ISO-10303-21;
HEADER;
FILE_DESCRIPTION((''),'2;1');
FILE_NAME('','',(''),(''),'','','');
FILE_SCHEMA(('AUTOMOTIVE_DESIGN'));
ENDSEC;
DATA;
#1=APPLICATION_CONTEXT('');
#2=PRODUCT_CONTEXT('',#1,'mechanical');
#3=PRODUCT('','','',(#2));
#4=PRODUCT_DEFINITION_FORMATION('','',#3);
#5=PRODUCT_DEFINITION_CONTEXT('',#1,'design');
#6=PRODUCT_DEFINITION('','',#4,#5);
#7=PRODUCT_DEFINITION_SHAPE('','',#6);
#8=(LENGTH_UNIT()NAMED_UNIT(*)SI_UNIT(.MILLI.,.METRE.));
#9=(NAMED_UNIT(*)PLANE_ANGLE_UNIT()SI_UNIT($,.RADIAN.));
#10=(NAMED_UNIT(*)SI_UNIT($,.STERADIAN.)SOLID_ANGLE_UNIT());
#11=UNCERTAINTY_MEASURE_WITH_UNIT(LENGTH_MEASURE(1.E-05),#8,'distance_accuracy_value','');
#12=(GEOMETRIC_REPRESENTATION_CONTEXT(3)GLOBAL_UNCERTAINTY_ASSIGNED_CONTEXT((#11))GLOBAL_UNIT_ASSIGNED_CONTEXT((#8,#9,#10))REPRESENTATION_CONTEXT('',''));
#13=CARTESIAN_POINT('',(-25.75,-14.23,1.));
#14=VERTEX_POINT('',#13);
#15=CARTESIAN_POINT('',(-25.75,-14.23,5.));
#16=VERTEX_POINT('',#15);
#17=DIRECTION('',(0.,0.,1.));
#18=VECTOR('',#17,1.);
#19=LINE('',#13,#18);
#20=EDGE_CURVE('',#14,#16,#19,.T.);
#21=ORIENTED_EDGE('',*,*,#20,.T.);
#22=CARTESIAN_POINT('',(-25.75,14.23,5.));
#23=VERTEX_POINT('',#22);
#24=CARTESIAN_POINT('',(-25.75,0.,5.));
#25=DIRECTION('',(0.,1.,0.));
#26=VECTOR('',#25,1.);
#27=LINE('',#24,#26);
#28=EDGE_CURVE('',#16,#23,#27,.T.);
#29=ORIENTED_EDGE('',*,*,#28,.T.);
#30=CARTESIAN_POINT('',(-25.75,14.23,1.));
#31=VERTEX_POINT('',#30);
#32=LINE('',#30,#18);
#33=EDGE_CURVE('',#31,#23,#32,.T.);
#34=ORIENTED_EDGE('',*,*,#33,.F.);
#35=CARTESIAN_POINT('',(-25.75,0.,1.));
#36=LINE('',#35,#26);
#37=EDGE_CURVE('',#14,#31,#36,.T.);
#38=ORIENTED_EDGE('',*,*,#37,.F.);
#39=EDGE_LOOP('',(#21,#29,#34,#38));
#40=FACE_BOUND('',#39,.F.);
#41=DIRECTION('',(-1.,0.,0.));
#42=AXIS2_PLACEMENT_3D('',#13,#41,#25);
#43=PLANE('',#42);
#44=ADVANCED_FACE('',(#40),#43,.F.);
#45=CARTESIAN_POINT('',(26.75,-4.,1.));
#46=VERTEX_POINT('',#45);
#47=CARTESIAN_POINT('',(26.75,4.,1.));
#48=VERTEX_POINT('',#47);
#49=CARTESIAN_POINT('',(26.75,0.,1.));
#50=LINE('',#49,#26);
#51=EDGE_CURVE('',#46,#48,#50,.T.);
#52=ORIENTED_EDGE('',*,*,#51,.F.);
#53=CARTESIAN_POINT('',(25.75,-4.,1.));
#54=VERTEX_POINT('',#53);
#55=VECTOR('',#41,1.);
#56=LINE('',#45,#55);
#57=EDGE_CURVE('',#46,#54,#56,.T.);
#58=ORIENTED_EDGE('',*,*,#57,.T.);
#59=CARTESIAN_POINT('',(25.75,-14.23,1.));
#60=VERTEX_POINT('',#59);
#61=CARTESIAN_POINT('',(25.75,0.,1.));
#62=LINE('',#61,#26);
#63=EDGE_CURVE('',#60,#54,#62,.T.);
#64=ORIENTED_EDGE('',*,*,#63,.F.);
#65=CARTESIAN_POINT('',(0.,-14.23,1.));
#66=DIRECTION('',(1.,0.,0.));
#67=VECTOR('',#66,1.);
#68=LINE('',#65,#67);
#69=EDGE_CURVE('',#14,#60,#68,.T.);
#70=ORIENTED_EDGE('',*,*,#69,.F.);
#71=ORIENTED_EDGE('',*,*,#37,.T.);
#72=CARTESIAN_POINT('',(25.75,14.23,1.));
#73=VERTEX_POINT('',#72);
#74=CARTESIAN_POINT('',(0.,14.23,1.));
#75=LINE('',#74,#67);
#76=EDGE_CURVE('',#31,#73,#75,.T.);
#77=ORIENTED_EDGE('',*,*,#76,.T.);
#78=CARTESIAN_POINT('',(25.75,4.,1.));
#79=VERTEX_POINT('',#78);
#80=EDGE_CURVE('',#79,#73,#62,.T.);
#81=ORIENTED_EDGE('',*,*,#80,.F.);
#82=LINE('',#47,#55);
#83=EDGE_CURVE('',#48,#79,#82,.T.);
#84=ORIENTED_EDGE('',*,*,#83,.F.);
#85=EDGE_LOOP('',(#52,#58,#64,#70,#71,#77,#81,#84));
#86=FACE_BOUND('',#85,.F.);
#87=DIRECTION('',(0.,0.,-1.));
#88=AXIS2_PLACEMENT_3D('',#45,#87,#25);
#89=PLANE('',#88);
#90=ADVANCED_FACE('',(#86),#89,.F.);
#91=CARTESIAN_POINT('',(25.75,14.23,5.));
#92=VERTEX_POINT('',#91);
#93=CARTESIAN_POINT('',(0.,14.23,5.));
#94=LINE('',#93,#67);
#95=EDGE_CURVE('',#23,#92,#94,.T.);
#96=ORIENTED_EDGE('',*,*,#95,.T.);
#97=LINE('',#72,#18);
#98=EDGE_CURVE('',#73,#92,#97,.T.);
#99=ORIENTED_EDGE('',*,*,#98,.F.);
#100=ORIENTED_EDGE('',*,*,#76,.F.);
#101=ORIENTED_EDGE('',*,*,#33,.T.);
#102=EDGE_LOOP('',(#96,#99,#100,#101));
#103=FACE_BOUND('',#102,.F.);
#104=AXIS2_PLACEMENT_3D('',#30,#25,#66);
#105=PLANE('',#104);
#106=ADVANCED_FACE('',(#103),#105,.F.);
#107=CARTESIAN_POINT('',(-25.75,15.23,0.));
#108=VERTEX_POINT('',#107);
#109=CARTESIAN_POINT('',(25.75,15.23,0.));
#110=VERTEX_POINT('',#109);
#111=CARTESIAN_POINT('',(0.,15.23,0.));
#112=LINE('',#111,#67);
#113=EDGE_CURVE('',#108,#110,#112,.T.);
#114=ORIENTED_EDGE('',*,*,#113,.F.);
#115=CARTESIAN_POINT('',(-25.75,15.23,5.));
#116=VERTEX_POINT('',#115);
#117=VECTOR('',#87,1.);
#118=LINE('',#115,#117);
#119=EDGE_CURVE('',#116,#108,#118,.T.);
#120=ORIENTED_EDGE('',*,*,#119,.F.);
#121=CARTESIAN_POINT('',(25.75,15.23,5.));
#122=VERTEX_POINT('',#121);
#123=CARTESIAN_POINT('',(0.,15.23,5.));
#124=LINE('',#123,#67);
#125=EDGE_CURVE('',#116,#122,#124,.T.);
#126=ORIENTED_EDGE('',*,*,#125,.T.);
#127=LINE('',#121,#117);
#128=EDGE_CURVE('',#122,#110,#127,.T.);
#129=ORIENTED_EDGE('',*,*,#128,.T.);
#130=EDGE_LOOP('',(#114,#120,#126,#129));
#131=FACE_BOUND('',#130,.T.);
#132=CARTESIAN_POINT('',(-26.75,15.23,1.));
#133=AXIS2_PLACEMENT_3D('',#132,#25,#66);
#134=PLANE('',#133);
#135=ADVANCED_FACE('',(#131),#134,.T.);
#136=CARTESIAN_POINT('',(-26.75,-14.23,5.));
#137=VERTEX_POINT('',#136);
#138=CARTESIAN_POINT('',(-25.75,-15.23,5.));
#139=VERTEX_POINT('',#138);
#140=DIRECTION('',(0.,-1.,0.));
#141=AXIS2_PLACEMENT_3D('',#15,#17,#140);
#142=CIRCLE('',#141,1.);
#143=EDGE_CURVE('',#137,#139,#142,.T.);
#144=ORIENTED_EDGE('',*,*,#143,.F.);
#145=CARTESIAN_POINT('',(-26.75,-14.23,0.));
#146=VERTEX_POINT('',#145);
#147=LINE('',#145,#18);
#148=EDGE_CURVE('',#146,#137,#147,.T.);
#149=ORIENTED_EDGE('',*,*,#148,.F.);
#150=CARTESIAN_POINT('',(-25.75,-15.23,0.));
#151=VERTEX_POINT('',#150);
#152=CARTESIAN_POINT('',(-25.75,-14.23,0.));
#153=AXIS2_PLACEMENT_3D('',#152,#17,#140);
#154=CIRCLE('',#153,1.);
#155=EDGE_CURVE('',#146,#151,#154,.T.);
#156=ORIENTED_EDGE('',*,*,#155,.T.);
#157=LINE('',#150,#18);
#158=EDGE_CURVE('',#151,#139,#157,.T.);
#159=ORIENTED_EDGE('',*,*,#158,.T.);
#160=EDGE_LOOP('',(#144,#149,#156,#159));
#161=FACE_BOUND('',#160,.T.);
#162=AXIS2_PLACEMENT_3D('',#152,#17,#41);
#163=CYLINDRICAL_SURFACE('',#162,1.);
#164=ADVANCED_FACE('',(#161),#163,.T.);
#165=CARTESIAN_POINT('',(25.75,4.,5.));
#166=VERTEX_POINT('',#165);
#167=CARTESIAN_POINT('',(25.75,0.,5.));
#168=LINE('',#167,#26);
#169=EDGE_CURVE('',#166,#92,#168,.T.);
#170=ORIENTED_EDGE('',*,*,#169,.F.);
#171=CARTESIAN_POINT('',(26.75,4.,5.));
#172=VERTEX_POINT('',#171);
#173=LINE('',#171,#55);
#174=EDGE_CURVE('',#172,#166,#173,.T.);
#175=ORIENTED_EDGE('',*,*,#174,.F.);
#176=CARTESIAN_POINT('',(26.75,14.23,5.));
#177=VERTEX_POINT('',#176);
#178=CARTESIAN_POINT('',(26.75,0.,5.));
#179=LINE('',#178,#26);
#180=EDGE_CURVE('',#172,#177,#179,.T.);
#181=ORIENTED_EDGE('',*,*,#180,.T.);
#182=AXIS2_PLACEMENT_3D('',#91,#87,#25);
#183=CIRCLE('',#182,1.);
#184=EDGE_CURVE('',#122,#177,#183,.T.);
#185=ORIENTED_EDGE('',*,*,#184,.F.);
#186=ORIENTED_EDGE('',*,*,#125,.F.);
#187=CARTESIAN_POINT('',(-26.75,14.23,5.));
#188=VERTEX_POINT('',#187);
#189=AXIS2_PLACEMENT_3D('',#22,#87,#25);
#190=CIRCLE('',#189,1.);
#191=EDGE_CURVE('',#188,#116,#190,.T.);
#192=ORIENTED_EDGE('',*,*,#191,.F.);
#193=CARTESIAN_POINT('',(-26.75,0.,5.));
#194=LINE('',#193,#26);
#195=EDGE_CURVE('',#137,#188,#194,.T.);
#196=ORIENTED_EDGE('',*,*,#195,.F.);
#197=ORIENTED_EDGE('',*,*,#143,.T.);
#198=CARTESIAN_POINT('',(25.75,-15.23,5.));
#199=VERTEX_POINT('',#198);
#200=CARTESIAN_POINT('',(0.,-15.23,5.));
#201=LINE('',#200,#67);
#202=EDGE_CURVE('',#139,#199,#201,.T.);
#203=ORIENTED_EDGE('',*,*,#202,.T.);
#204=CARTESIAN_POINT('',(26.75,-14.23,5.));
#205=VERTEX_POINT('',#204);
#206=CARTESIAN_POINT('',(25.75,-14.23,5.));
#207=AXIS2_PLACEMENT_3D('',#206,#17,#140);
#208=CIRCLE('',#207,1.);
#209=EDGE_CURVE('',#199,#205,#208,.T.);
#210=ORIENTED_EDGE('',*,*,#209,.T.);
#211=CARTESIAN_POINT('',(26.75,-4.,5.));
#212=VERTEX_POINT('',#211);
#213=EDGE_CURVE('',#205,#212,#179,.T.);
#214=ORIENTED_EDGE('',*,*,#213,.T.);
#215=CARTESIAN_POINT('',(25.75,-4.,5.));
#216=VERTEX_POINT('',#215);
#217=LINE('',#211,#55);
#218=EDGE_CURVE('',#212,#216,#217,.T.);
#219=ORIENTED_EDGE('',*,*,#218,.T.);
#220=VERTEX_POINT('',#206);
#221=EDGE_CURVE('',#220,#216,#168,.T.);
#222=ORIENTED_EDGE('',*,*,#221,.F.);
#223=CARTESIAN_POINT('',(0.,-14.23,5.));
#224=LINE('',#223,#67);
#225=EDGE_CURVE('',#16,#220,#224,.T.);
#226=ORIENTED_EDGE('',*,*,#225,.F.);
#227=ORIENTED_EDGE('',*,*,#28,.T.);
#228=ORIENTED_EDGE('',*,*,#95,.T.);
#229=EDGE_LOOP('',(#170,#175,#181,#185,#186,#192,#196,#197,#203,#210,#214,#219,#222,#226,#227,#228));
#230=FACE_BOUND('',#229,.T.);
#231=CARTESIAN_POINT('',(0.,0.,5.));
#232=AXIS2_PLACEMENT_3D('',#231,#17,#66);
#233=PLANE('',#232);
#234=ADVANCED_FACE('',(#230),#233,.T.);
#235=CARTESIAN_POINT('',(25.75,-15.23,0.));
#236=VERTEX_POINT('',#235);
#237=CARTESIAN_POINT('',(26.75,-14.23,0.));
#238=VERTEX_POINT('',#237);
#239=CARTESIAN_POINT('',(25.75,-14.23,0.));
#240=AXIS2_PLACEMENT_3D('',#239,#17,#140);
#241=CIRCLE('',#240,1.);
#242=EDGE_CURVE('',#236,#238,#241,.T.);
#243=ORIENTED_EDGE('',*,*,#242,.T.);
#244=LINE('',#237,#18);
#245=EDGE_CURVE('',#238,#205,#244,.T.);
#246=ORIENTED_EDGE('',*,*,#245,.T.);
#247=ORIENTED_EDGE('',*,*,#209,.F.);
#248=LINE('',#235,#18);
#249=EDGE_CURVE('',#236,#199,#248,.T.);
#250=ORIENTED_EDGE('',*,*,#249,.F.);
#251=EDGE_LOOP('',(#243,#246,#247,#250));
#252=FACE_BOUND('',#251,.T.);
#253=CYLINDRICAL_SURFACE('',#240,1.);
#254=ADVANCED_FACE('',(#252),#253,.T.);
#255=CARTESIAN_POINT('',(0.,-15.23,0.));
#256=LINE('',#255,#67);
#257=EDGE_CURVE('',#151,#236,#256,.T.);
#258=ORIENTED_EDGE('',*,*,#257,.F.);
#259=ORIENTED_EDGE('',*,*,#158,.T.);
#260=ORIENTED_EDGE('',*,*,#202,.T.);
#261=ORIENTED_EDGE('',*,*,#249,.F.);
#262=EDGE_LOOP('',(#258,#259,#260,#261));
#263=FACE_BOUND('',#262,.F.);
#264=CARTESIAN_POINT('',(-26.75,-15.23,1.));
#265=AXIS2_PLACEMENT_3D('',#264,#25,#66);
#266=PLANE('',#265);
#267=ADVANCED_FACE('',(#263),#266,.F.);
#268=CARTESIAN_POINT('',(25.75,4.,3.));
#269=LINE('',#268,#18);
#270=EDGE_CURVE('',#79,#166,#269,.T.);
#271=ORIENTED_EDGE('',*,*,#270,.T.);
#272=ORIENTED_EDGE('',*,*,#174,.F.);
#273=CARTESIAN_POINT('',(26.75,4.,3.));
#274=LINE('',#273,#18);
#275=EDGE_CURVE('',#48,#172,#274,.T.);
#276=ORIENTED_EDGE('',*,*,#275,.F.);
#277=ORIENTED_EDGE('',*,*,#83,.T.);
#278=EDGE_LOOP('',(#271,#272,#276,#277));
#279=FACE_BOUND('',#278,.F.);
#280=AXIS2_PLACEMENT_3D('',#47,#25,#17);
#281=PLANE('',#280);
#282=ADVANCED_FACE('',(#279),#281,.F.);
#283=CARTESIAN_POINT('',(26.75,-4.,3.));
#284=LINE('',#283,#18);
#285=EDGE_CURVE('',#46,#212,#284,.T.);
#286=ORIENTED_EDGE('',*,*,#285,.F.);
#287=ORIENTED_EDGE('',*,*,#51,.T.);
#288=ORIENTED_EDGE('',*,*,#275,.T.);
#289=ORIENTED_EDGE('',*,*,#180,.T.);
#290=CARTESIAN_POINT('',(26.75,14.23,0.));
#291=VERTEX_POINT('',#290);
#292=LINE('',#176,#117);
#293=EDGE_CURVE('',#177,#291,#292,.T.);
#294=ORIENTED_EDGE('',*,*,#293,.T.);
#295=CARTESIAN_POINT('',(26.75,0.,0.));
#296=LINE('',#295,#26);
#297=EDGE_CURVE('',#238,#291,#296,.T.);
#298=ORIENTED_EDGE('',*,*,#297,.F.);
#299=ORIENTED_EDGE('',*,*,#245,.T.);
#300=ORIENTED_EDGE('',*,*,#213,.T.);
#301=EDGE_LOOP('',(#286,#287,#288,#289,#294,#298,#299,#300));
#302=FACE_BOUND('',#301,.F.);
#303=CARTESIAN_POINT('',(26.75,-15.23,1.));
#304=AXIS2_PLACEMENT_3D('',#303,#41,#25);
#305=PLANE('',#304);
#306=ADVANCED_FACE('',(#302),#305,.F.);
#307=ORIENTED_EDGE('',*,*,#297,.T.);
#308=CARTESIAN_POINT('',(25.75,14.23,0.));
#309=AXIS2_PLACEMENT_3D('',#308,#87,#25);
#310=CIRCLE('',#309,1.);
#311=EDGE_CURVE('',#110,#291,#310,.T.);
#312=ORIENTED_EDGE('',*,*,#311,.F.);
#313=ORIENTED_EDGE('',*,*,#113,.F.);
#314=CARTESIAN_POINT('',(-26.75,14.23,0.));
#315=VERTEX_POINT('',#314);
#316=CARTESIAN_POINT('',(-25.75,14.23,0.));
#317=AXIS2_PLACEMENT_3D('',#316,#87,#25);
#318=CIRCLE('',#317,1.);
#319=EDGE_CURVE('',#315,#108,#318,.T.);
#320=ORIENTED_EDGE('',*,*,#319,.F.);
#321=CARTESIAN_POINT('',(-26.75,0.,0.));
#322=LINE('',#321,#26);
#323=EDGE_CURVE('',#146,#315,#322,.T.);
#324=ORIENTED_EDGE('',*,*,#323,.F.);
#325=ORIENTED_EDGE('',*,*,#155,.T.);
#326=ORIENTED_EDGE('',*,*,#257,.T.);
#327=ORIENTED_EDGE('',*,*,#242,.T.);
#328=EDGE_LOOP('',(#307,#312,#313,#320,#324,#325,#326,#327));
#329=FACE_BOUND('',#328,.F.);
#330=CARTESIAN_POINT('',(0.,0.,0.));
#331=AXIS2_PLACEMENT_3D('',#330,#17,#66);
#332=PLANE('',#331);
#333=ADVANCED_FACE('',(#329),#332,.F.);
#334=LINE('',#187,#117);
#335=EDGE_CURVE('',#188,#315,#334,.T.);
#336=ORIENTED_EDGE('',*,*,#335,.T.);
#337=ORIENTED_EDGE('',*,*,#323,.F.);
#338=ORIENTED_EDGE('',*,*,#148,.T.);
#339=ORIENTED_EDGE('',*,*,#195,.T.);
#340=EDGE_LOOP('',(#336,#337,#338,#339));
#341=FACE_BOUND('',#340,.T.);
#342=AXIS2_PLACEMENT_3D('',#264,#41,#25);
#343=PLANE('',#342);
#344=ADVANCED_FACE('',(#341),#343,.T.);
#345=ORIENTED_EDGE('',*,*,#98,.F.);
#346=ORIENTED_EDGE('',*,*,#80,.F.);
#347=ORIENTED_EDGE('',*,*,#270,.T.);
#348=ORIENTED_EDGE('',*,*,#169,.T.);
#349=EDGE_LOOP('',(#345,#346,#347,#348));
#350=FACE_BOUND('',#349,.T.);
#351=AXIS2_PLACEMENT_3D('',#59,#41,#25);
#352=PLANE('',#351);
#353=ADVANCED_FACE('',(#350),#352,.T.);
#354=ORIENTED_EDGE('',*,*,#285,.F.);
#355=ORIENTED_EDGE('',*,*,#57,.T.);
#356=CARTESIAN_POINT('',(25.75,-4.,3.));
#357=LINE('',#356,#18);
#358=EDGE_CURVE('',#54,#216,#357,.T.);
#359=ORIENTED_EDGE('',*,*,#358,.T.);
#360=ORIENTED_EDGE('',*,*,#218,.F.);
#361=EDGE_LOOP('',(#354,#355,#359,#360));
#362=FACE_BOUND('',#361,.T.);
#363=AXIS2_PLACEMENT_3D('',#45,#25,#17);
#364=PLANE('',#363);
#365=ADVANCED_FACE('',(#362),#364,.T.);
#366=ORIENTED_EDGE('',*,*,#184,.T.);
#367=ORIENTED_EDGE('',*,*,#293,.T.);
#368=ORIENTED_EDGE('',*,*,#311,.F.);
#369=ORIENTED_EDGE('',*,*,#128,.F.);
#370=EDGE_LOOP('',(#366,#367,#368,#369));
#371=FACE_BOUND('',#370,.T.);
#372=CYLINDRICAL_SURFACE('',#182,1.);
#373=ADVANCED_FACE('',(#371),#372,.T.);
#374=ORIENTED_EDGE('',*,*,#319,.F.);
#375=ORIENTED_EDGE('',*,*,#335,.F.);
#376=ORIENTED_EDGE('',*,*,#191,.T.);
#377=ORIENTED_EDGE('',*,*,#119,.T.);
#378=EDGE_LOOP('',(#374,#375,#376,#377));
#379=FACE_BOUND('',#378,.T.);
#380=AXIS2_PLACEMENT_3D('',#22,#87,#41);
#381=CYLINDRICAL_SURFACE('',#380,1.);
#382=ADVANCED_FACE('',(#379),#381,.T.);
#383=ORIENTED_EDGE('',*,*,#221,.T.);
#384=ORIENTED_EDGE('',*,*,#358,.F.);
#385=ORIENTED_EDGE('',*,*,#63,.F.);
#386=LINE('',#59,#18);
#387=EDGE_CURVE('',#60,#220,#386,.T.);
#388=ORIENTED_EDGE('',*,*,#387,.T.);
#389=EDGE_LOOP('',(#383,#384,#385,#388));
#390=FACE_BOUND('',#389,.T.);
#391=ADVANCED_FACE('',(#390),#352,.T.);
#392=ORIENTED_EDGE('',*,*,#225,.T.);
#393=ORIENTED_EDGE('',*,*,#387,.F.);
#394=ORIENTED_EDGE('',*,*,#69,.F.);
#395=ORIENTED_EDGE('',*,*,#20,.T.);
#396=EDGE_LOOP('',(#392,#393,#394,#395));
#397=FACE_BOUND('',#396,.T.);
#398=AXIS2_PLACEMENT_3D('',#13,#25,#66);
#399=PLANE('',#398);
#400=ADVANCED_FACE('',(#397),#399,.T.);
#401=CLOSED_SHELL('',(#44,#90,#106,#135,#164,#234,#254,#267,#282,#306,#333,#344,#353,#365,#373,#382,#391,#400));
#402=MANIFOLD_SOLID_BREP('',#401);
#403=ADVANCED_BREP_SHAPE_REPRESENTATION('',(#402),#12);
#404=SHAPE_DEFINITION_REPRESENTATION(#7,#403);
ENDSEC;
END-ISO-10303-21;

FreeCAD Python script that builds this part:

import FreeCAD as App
import Part
import Sketcher
from FreeCAD import Vector
Q = App.Units.Quantity


def edges_at(feature, points):
    """Names of the edges that pass closest to the given points."""
    edges = feature.Shape.Edges
    near = lambda p: min(range(len(edges)), key=lambda i: edges[i].distToShape(Part.Vertex(*p))[0])
    return sorted({f"Edge{near(p) + 1}" for p in points})


def add_polygon(sketch, points):
    """Adds a closed chain of lines whose ends are joined by coincident constraints."""
    first, n = sketch.GeometryCount, len(points)
    for a, b in zip(points, points[1:] + points[:1]):
        sketch.addGeometry(Part.LineSegment(App.Vector(*a, 0), App.Vector(*b, 0)), False)
    for i in range(n):
        sketch.addConstraint(Sketcher.Constraint("Coincident", first + i, 2, first + (i + 1) % n, 1))

doc = App.newDocument("Part")
body = doc.addObject("PartDesign::Body", "Body")

# Sketch on XY plane
sketch1 = doc.addObject("Sketcher::SketchObject", "Sketch")
body.addObject(sketch1)
sketch1.AttachmentSupport = (doc.XY_Plane, [""])
sketch1.MapMode = "FlatFace"
add_polygon(sketch1, [(-27, 15), (-27, -15), (27, -15), (27, 15)])  # lines 0-3
sketch1.addConstraint([
    Sketcher.Constraint("Vertical", 0),
    Sketcher.Constraint("Horizontal", 1),
    Sketcher.Constraint("Vertical", 2),
    Sketcher.Constraint("Horizontal", 3),
    Sketcher.Constraint("Symmetric", 0, 2, 2, 2, -1, 1),
    Sketcher.Constraint("DistanceX", 1, 1, 1, 2, Q("53.5 mm")),
    Sketcher.Constraint("DistanceY", 0, 2, 0, 1, Q("30.46 mm")),
])
pad1 = doc.addObject("PartDesign::Pad", "Pad")
body.addObject(pad1)
pad1.Profile = sketch1
pad1.Length = 1

# Sketch on XY plane
sketch2 = doc.addObject("Sketcher::SketchObject", "Sketch001")
body.addObject(sketch2)
sketch2.AttachmentSupport = (doc.XY_Plane, [""])
sketch2.MapMode = "FlatFace"
sketch2.AttachmentOffset = App.Placement(Vector(0, 0, 1), App.Rotation())
add_polygon(sketch2, [(-27, 15), (-27, -15), (27, -15), (27, 15)])  # lines 0-3
add_polygon(sketch2, [(26, -14), (-26, -14), (-26, 14), (26, 14)])  # lines 4-7
sketch2.addConstraint([
    Sketcher.Constraint("Vertical", 0),
    Sketcher.Constraint("Horizontal", 1),
    Sketcher.Constraint("Vertical", 2),
    Sketcher.Constraint("Horizontal", 3),
    Sketcher.Constraint("Horizontal", 4),
    Sketcher.Constraint("Vertical", 5),
    Sketcher.Constraint("Horizontal", 6),
    Sketcher.Constraint("Vertical", 7),
    Sketcher.Constraint("Symmetric", 0, 2, 2, 2, -1, 1),
    Sketcher.Constraint("Symmetric", 4, 2, 6, 2, -1, 1),
    Sketcher.Constraint("DistanceX", 1, 1, 1, 2, Q("53.5 mm")),
    Sketcher.Constraint("DistanceX", 4, 2, 4, 1, Q("51.5 mm")),
    Sketcher.Constraint("DistanceY", 0, 2, 4, 2, Q("1 mm")),
    Sketcher.Constraint("DistanceY", 0, 2, 0, 1, Q("30.46 mm")),
])
pad2 = doc.addObject("PartDesign::Pad", "Pad001")
body.addObject(pad2)
pad2.Profile = sketch2
pad2.Length = 4

# Sketch on YZ plane
sketch3 = doc.addObject("Sketcher::SketchObject", "Sketch002")
body.addObject(sketch3)
sketch3.AttachmentSupport = (doc.YZ_Plane, [""])
sketch3.MapMode = "FlatFace"
sketch3.AttachmentOffset = App.Placement(Vector(0, 0, 26.75), App.Rotation())
add_polygon(sketch3, [(-4, 5), (-4, 1), (4, 1), (4, 5)])  # lines 0-3
sketch3.addConstraint([
    Sketcher.Constraint("Vertical", 0),
    Sketcher.Constraint("Horizontal", 1),
    Sketcher.Constraint("Vertical", 2),
    Sketcher.Constraint("Horizontal", 3),
    Sketcher.Constraint("DistanceX", 1, 1, 1, 2, Q("8 mm")),
    Sketcher.Constraint("DistanceY", 0, 2, 0, 1, Q("4 mm")),
    Sketcher.Constraint("DistanceX", 0, 2, -1, 1, Q("4 mm")),
    Sketcher.Constraint("DistanceY", -1, 1, 0, 2, Q("1 mm")),
])
pocket1 = doc.addObject("PartDesign::Pocket", "Pocket")
body.addObject(pocket1)
pocket1.Profile = sketch3
pocket1.Length = 1
doc.recompute()

fillet = doc.addObject("PartDesign::Fillet", "Fillet")
body.addObject(fillet)
fillet.Base = (pocket1, edges_at(pocket1, [
    (26.75, -15.23, 2.5),
    (26.75, -15.23, 2.5),
    (26.75, 15.23, 2.5),
    (26.75, 15.23, 2.5),
    (-26.75, 15.23, 2.5),
    (-26.75, 15.23, 2.5),
    (-26.75, -15.23, 2.5),
    (-26.75, -15.23, 2.5),
]))
fillet.Radius = 1

doc.recompute()
